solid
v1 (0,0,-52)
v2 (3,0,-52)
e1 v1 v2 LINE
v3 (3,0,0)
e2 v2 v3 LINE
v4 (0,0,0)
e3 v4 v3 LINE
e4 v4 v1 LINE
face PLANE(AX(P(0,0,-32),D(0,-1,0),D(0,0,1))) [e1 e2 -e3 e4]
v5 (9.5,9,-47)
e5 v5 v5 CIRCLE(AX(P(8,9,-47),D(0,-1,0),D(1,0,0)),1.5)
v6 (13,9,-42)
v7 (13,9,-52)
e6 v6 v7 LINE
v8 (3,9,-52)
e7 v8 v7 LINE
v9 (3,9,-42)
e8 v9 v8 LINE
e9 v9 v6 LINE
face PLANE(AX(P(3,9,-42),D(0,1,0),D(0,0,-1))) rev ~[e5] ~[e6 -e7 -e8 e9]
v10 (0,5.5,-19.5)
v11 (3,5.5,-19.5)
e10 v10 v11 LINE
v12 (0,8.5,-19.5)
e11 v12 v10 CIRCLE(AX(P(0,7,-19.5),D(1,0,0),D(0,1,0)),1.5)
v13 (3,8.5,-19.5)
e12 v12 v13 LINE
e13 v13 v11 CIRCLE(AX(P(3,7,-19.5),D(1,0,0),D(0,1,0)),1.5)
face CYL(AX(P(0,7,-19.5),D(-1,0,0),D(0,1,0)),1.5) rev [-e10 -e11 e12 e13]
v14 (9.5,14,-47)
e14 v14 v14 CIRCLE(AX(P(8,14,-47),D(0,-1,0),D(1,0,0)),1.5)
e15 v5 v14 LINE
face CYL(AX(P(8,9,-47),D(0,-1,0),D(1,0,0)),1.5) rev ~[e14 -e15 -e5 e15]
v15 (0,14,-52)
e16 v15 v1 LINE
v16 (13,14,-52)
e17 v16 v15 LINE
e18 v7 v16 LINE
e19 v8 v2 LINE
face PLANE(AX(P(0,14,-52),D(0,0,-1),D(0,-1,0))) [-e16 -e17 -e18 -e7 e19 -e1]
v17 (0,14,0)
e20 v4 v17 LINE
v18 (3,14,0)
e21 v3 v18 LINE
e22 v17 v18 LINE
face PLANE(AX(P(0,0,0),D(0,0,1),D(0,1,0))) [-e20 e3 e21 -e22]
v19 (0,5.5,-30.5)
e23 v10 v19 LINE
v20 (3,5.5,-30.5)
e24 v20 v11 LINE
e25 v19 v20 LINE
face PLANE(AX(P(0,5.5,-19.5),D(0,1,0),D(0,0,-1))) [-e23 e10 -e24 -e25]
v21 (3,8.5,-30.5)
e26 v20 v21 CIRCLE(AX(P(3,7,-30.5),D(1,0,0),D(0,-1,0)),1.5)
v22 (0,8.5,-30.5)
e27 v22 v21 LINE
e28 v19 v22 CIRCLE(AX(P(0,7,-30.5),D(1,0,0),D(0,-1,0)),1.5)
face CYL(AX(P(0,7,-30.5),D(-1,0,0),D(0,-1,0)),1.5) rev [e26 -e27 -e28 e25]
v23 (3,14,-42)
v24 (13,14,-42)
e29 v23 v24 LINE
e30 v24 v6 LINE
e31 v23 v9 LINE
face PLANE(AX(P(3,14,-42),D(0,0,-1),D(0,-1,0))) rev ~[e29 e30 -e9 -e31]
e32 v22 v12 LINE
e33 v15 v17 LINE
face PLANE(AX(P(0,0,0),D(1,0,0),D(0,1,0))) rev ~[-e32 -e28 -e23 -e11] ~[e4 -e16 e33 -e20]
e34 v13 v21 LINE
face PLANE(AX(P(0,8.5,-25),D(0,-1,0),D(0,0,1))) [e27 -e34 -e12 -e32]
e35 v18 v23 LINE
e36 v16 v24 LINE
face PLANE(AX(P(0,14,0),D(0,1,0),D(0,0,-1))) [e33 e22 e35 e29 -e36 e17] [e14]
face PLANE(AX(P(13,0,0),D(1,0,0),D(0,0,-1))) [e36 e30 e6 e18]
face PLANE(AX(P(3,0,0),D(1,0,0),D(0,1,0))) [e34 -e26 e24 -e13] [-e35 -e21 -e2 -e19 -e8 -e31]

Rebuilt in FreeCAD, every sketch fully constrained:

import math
import FreeCAD as App
import Part
import Sketcher
from FreeCAD import Vector

doc = App.newDocument("Part")
body = doc.addObject("PartDesign::Body", "Body")

sketch1 = body.newObject("Sketcher::SketchObject", "Sketch")
sketch1.AttachmentSupport = (doc.getObject("YZ_Plane"), [""])
sketch1.MapMode = "FlatFace"
sketch1.addGeometry(Part.LineSegment(Vector(14, 0, 0), Vector(0, 0, 0)), False)
sketch1.addGeometry(Part.LineSegment(Vector(0, 0, 0), Vector(0, -52, 0)), False)
sketch1.addGeometry(Part.LineSegment(Vector(0, -52, 0), Vector(14, -52, 0)), False)
sketch1.addGeometry(Part.LineSegment(Vector(14, -52, 0), Vector(14, 0, 0)), False)
sketch1.addGeometry(Part.LineSegment(Vector(8.5, -19.5, 0), Vector(8.5, -30.5, 0)), False)
sketch1.addGeometry(Part.ArcOfCircle(Part.Circle(Vector(7, -30.5, 0), Vector(0, 0, 1), 1.5), math.radians(180), math.radians(360)), False)
sketch1.addGeometry(Part.LineSegment(Vector(5.5, -30.5, 0), Vector(5.5, -19.5, 0)), False)
sketch1.addGeometry(Part.ArcOfCircle(Part.Circle(Vector(7, -19.5, 0), Vector(0, 0, 1), 1.5), math.radians(0), math.radians(180)), False)
sketch1.addConstraint(Sketcher.Constraint("Coincident", 0, 2, 1, 1))
sketch1.addConstraint(Sketcher.Constraint("Coincident", 1, 2, 2, 1))
sketch1.addConstraint(Sketcher.Constraint("Coincident", 2, 2, 3, 1))
sketch1.addConstraint(Sketcher.Constraint("Coincident", 3, 2, 0, 1))
sketch1.addConstraint(Sketcher.Constraint("Tangent", 4, 2, 5, 2))
sketch1.addConstraint(Sketcher.Constraint("Tangent", 5, 1, 6, 1))
sketch1.addConstraint(Sketcher.Constraint("Tangent", 6, 2, 7, 2))
sketch1.addConstraint(Sketcher.Constraint("Tangent", 7, 1, 4, 1))
sketch1.addConstraint(Sketcher.Constraint("Horizontal", 0))
sketch1.addConstraint(Sketcher.Constraint("Vertical", 1))
sketch1.addConstraint(Sketcher.Constraint("Horizontal", 2))
sketch1.addConstraint(Sketcher.Constraint("Vertical", 3))
sketch1.addConstraint(Sketcher.Constraint("Vertical", 4))
sketch1.addConstraint(Sketcher.Constraint("Vertical", 6))
sketch1.addConstraint(Sketcher.Constraint("Coincident", 0, 2, -1, 1))
sketch1.addConstraint(Sketcher.Constraint("Radius", 5, 1.5))
sketch1.addConstraint(Sketcher.Constraint("DistanceX", 0, 2, 0, 1, 14.0))
sketch1.addConstraint(Sketcher.Constraint("DistanceX", -1, 1, 5, 3, 7.0))
sketch1.addConstraint(Sketcher.Constraint("DistanceY", 1, 2, 1, 1, 52.0))
sketch1.addConstraint(Sketcher.Constraint("DistanceY", 4, 2, 4, 1, 11.0))
sketch1.addConstraint(Sketcher.Constraint("DistanceY", 5, 3, -1, 1, 30.5))
pad1 = body.newObject("PartDesign::Pad", "Pad")
pad1.Profile = sketch1
pad1.Length = 3

sketch2 = body.newObject("Sketcher::SketchObject", "Sketch001")
sketch2.AttachmentSupport = (doc.getObject("YZ_Plane"), [""])
sketch2.MapMode = "FlatFace"
sketch2.AttachmentOffset = App.Placement(Vector(0, 0, 3), App.Rotation())
sketch2.addGeometry(Part.LineSegment(Vector(9, -52, 0), Vector(14, -52, 0)), False)
sketch2.addGeometry(Part.LineSegment(Vector(14, -52, 0), Vector(14, -42, 0)), False)
sketch2.addGeometry(Part.LineSegment(Vector(14, -42, 0), Vector(9, -42, 0)), False)
sketch2.addGeometry(Part.LineSegment(Vector(9, -42, 0), Vector(9, -52, 0)), False)
sketch2.addConstraint(Sketcher.Constraint("Coincident", 0, 2, 1, 1))
sketch2.addConstraint(Sketcher.Constraint("Coincident", 1, 2, 2, 1))
sketch2.addConstraint(Sketcher.Constraint("Coincident", 2, 2, 3, 1))
sketch2.addConstraint(Sketcher.Constraint("Coincident", 3, 2, 0, 1))
sketch2.addConstraint(Sketcher.Constraint("Horizontal", 0))
sketch2.addConstraint(Sketcher.Constraint("Vertical", 1))
sketch2.addConstraint(Sketcher.Constraint("Horizontal", 2))
sketch2.addConstraint(Sketcher.Constraint("Vertical", 3))
sketch2.addConstraint(Sketcher.Constraint("DistanceX", 0, 1, 0, 2, 5.0))
sketch2.addConstraint(Sketcher.Constraint("DistanceY", 1, 1, 1, 2, 10.0))
sketch2.addConstraint(Sketcher.Constraint("DistanceX", -1, 1, 0, 2, 14.0))
sketch2.addConstraint(Sketcher.Constraint("DistanceY", 0, 2, -1, 1, 52.0))
pad2 = body.newObject("PartDesign::Pad", "Pad001")
pad2.Profile = sketch2
pad2.Length = 10

sketch3 = body.newObject("Sketcher::SketchObject", "Sketch002")
sketch3.AttachmentSupport = (doc.getObject("XZ_Plane"), [""])
sketch3.MapMode = "FlatFace"
sketch3.AttachmentOffset = App.Placement(Vector(0, 0, -9), App.Rotation())
sketch3.addGeometry(Part.Circle(Vector(8, -47, 0), Vector(0, 0, 1), 1.5), False)
sketch3.addConstraint(Sketcher.Constraint("Diameter", 0, 3.0))
sketch3.addConstraint(Sketcher.Constraint("DistanceX", -1, 1, 0, 3, 8.0))
sketch3.addConstraint(Sketcher.Constraint("DistanceY", 0, 3, -1, 1, 47.0))
pocket1 = body.newObject("PartDesign::Pocket", "Pocket")
pocket1.Profile = sketch3
pocket1.Type = "ThroughAll"

doc.recompute()
